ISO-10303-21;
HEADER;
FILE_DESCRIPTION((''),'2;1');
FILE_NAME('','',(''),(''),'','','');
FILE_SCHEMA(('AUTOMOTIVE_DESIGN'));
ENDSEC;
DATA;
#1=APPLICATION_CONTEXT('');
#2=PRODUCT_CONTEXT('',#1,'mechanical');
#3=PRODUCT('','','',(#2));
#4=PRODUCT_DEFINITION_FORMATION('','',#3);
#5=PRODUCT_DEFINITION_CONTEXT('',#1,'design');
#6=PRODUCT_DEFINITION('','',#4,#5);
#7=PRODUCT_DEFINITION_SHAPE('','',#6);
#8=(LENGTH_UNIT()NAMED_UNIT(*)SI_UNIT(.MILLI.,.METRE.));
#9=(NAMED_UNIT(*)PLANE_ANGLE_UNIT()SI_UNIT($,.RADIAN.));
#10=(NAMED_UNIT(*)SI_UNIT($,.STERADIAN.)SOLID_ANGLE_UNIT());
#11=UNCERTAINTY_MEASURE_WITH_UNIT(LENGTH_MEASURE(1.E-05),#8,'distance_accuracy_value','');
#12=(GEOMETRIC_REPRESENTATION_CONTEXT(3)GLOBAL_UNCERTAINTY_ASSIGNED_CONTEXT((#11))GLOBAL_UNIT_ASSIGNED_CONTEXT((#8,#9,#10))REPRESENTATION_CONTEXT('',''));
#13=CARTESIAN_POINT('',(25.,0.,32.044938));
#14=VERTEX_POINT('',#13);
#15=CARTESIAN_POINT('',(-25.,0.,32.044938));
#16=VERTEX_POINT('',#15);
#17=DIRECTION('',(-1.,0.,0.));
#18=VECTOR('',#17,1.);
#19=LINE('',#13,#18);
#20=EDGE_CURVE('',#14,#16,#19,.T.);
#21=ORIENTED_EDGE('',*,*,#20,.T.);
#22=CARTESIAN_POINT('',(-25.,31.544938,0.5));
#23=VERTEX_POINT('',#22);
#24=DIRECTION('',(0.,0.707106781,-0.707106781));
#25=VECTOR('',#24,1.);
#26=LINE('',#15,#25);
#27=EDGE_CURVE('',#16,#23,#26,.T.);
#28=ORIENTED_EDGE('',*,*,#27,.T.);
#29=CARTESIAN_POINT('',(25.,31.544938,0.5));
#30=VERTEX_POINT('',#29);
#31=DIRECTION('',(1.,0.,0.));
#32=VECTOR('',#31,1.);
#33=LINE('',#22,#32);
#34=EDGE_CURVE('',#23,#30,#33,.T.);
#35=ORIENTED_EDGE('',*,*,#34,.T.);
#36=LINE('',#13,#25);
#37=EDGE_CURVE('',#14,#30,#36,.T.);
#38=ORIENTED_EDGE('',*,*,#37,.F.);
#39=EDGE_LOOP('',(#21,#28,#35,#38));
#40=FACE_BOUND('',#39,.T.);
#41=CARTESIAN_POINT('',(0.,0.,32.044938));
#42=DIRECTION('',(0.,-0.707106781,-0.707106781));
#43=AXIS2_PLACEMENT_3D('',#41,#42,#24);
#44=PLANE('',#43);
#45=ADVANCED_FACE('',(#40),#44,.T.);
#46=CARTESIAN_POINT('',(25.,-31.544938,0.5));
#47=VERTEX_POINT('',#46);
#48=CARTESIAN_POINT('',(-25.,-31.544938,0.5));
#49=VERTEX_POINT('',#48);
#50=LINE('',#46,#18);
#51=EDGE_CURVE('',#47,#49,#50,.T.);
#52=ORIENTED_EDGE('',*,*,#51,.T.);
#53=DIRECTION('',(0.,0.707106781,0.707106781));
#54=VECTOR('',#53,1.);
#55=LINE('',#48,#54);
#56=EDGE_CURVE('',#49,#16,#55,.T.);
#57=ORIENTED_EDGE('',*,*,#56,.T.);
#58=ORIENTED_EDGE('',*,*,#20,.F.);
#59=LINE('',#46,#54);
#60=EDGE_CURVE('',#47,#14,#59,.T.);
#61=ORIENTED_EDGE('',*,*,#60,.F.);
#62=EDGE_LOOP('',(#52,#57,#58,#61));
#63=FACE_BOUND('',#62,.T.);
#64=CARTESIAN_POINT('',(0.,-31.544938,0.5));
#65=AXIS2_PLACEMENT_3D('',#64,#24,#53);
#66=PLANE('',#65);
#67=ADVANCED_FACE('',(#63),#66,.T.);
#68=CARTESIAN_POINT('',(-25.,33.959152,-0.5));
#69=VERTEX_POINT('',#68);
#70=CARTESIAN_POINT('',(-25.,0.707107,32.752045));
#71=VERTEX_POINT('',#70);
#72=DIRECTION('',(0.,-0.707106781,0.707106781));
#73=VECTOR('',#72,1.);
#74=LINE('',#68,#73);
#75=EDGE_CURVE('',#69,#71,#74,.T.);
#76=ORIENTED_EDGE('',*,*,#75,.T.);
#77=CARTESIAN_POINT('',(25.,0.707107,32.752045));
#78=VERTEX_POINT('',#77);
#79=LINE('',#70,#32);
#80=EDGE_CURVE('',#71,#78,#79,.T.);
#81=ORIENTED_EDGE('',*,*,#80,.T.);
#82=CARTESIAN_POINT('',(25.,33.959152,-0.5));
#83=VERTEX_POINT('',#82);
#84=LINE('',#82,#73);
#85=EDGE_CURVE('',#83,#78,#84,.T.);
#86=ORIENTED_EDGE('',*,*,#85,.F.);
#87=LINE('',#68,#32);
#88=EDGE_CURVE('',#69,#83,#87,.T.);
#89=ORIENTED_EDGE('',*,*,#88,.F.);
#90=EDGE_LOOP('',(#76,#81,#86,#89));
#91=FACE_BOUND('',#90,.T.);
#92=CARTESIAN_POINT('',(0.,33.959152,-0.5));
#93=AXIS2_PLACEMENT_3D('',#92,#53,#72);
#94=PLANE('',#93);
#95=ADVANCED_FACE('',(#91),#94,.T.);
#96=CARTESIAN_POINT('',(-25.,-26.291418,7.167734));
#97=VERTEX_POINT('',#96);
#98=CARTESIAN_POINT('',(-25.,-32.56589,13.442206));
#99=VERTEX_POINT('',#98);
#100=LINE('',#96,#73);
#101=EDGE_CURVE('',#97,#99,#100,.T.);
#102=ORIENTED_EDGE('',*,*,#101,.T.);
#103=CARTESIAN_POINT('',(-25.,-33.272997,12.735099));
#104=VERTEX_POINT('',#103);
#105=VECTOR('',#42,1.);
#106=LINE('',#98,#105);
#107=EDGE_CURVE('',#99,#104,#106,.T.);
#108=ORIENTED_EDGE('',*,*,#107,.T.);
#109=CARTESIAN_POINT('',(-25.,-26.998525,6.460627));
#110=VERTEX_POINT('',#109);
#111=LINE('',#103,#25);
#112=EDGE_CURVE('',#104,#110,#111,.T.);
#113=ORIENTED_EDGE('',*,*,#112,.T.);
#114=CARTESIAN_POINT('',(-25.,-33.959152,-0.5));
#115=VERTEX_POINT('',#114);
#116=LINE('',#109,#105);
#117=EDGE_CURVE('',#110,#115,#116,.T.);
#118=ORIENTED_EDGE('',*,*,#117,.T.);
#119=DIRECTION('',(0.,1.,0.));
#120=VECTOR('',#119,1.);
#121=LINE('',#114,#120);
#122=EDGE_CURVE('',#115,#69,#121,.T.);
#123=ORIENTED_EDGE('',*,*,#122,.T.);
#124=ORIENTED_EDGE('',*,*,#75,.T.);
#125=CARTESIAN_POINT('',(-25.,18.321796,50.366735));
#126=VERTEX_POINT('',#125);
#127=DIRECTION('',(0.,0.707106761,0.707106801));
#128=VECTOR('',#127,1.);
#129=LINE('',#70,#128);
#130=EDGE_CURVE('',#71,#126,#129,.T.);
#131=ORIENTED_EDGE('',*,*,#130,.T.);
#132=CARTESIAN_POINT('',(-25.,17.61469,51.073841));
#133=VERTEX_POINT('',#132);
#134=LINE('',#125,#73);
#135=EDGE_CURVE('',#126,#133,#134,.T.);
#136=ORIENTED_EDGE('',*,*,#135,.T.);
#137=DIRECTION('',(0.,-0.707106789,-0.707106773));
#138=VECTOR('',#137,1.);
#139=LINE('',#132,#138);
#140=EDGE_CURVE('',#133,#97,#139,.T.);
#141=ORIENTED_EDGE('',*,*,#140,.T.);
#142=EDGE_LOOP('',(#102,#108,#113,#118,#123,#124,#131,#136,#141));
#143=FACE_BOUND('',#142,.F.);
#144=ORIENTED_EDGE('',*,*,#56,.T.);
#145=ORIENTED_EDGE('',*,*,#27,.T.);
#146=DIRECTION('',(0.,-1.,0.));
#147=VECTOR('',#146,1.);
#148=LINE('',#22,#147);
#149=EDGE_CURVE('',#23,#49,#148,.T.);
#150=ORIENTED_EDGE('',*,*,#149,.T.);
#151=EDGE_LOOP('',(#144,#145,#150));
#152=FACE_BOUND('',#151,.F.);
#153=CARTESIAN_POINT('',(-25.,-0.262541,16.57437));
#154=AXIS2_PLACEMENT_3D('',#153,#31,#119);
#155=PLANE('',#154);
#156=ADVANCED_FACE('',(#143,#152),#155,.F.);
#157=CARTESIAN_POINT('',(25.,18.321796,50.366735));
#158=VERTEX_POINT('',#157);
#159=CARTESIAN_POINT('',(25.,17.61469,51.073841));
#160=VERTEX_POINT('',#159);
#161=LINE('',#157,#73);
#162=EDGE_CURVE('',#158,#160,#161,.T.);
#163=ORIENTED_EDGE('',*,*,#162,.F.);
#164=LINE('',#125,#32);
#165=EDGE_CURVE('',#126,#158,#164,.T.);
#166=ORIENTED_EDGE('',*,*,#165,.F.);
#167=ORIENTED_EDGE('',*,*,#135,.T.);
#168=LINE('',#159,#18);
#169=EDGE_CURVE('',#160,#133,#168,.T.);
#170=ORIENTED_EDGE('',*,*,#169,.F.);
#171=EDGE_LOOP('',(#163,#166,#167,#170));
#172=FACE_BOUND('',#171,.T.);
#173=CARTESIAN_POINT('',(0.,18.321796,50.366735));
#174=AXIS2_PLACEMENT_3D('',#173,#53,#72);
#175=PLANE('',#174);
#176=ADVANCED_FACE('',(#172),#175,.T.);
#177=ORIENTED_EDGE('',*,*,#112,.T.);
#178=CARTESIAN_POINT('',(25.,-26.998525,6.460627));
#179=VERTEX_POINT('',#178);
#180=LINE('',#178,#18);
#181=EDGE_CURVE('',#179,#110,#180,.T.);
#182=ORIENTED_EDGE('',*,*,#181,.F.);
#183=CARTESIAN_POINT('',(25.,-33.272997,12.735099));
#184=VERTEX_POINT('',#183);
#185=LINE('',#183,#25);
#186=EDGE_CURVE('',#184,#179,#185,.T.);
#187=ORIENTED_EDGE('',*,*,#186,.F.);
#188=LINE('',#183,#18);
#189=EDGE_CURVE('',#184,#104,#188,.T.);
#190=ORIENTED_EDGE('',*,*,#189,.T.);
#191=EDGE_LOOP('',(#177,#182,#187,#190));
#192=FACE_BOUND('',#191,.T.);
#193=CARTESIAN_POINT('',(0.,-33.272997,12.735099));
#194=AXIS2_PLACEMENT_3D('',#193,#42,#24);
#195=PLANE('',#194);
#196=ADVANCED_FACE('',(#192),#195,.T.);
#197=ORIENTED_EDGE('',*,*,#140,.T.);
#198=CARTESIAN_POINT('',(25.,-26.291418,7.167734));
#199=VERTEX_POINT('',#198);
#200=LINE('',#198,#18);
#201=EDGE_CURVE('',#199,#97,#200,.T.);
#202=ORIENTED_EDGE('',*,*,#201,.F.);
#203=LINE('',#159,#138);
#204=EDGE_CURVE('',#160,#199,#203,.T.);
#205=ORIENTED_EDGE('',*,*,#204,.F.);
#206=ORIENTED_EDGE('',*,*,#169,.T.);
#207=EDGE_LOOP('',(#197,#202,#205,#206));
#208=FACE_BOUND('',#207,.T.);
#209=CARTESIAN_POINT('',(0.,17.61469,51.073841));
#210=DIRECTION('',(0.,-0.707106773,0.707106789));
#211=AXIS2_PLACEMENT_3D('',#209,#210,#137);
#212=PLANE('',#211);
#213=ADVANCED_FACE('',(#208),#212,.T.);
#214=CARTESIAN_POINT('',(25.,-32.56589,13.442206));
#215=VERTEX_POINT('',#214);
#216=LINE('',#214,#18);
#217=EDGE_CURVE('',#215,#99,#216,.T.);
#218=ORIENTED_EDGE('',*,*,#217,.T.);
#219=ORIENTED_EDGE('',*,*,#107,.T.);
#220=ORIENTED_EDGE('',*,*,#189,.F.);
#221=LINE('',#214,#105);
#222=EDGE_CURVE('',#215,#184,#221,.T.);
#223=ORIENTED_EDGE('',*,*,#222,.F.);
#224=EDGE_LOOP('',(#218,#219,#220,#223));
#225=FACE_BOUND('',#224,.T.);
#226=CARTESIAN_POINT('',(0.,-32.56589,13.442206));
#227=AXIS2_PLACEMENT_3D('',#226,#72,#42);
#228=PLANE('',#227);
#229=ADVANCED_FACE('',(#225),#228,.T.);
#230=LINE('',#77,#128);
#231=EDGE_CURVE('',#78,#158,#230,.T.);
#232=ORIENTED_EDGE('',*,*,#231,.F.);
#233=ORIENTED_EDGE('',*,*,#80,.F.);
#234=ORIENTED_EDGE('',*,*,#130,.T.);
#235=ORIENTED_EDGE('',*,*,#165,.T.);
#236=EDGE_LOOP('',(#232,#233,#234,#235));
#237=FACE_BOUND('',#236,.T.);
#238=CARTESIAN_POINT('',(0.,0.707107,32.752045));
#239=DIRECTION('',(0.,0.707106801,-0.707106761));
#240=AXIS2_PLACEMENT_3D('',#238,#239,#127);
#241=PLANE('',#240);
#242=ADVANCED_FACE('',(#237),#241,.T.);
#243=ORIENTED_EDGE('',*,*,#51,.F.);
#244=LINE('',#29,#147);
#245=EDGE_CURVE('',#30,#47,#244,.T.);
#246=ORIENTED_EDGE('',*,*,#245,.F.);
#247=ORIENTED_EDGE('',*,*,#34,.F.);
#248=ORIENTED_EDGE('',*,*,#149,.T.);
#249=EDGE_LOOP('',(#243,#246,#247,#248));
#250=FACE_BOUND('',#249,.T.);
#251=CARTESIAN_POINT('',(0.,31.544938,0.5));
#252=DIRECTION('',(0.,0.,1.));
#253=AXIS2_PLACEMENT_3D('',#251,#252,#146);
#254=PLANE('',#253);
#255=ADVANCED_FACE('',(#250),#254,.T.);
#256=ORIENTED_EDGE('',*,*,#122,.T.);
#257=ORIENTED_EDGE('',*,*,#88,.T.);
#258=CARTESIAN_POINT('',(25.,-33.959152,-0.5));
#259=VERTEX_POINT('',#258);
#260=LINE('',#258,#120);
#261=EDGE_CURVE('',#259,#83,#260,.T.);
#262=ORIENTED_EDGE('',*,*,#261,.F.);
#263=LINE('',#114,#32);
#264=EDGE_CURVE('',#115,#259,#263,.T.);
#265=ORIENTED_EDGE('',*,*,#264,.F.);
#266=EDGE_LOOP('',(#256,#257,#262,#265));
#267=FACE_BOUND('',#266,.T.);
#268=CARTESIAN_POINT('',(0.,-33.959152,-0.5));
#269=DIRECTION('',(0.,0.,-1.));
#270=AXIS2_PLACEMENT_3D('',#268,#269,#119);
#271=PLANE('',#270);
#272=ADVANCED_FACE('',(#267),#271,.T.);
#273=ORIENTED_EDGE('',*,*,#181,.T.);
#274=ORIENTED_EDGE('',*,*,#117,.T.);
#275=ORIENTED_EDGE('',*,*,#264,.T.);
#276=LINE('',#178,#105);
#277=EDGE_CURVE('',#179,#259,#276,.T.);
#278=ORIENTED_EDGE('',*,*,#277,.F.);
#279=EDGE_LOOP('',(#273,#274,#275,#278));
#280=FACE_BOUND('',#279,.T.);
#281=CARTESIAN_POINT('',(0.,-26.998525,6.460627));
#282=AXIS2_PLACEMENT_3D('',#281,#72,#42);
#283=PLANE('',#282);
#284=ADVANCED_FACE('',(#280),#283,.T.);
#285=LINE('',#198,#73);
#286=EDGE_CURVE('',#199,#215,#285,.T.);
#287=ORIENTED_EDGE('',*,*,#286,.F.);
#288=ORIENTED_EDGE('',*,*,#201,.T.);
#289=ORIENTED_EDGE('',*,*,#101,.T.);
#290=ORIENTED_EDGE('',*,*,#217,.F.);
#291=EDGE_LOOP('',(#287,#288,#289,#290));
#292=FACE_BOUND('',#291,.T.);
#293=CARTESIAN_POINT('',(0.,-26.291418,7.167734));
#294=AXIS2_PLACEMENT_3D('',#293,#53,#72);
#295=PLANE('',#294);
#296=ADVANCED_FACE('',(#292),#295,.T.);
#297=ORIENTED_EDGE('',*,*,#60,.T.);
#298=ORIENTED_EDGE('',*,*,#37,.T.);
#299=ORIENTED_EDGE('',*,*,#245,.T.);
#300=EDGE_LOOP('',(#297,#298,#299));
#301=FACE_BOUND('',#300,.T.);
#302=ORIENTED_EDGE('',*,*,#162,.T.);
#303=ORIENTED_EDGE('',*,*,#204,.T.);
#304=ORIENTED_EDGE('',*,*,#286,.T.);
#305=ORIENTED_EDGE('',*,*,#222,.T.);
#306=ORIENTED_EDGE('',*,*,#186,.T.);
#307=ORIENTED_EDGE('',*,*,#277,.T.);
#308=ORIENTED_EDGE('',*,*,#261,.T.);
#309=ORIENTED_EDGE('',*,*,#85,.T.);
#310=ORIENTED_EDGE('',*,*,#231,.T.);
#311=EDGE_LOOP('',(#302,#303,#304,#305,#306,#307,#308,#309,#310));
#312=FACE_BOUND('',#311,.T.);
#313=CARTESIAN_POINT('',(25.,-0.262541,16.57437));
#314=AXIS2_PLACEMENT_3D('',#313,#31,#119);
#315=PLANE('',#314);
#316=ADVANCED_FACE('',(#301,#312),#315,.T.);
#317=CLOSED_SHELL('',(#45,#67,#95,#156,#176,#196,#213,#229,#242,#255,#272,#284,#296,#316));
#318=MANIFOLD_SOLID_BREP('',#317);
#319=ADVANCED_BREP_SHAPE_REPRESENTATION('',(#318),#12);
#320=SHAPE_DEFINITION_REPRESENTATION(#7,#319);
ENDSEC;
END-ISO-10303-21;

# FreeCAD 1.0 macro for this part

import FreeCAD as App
import Part
import Sketcher
from FreeCAD import Vector

doc = App.newDocument("Part")
params = doc.addObject("Spreadsheet::Sheet", "Params")
for row, (alias, value) in enumerate([
    ("sketch1_length", "0.999999 mm"),
    ("pad1_length", "50 mm"),
], start=1):
    params.set(f"A{row}", alias)
    params.set(f"B{row}", "=" + value)
    params.setAlias(f"B{row}", alias)

body = doc.addObject("PartDesign::Body", "Body")

# Sketch on YZ plane
sketch1 = doc.addObject("Sketcher::SketchObject", "Sketch")
body.addObject(sketch1)
sketch1.AttachmentSupport = (doc.YZ_Plane, [""])
sketch1.MapMode = "FlatFace"
sketch1.addGeometry([
    Part.LineSegment(Vector(-27, 6.5, 0), Vector(-34, -0.5, 0)),  # 0
    Part.LineSegment(Vector(-34, -0.5, 0), Vector(34, -0.5, 0)),  # 1
    Part.LineSegment(Vector(34, -0.5, 0), Vector(0.7, 32.8, 0)),  # 2
    Part.LineSegment(Vector(0.7, 32.8, 0), Vector(18.3, 50.4, 0)),  # 3
    Part.LineSegment(Vector(18.3, 50.4, 0), Vector(17.6, 51.1, 0)),  # 4
    Part.LineSegment(Vector(17.6, 51.1, 0), Vector(-26.3, 7.2, 0)),  # 5
    Part.LineSegment(Vector(-26.3, 7.2, 0), Vector(-32.6, 13.4, 0)),  # 6
    Part.LineSegment(Vector(-32.6, 13.4, 0), Vector(-33.3, 12.7, 0)),  # 7
    Part.LineSegment(Vector(-33.3, 12.7, 0), Vector(-27, 6.5, 0)),  # 8
    Part.LineSegment(Vector(0, 32, 0), Vector(31.5, 0.5, 0)),  # 9
    Part.LineSegment(Vector(31.5, 0.5, 0), Vector(-31.5, 0.5, 0)),  # 10
    Part.LineSegment(Vector(-31.5, 0.5, 0), Vector(0, 32, 0)),  # 11
], False)
sketch1.addConstraint([
    Sketcher.Constraint("Coincident", 0, 2, 1, 1),
    Sketcher.Constraint("Coincident", 1, 2, 2, 1),
    Sketcher.Constraint("Coincident", 2, 2, 3, 1),
    Sketcher.Constraint("Coincident", 3, 2, 4, 1),
    Sketcher.Constraint("Coincident", 4, 2, 5, 1),
    Sketcher.Constraint("Coincident", 5, 2, 6, 1),
    Sketcher.Constraint("Coincident", 6, 2, 7, 1),
    Sketcher.Constraint("Coincident", 7, 2, 8, 1),
    Sketcher.Constraint("Coincident", 8, 2, 0, 1),
    Sketcher.Constraint("Coincident", 9, 2, 10, 1),
    Sketcher.Constraint("Coincident", 10, 2, 11, 1),
    Sketcher.Constraint("Coincident", 11, 2, 9, 1),
    Sketcher.Constraint("Horizontal", 1),
    Sketcher.Constraint("Horizontal", 10),
    Sketcher.Constraint("PointOnObject", 11, 2, -2),
    Sketcher.Constraint("Perpendicular", 0, 2),
    Sketcher.Constraint("Perpendicular", 2, 3),
    Sketcher.Constraint("Perpendicular", 3, 4),
    Sketcher.Constraint("Perpendicular", 4, 5),
    Sketcher.Constraint("Perpendicular", 5, 6),
    Sketcher.Constraint("Perpendicular", 6, 7),
    Sketcher.Constraint("Perpendicular", 7, 8),
    Sketcher.Constraint("Parallel", 8, 9),
    Sketcher.Constraint("Perpendicular", 9, 11),
    Sketcher.Constraint("Equal", 4, 7),
    Sketcher.Constraint("Equal", 6, 8),
    Sketcher.Constraint("Equal", 9, 11),
    Sketcher.Constraint("Distance", 4, 0.999999),
    Sketcher.Constraint("DistanceY", 1, 2, 9, 2, 1.0),
    Sketcher.Constraint("DistanceY", 0, 2, -1, 1, 0.5),
    Sketcher.Constraint("DistanceY", 5, 2, 3, 2, 43.199001),
    Sketcher.Constraint("DistanceY", -1, 1, 7, 2, 12.735099),
    Sketcher.Constraint("Distance", 9, 44.611279),
    Sketcher.Constraint("DistanceX", 1, 1, 1, 2, 67.918304),
    Sketcher.Constraint("DistanceX", -1, 1, 4, 2, 17.61469),
    Sketcher.Constraint("DistanceY", -1, 1, 4, 2, 51.073841),
])
sketch1.setExpression("Constraints[27]", "Params.sketch1_length")
pad1 = doc.addObject("PartDesign::Pad", "Pad")
body.addObject(pad1)
pad1.Profile = sketch1
pad1.setExpression("Length", "Params.pad1_length")
pad1.Midplane = True

doc.recompute()
